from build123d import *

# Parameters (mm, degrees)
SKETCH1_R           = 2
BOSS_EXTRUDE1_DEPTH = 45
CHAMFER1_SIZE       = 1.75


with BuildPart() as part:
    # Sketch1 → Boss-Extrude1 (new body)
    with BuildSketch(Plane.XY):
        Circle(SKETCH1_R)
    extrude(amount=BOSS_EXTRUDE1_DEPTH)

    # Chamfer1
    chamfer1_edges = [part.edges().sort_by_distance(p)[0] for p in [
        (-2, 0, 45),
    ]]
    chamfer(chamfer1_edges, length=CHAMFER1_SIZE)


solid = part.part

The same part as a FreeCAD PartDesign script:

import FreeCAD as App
import Part
import Sketcher
from FreeCAD import Vector
Q = App.Units.Quantity


def edges_at(feature, points):
    """Names of the edges that pass closest to the given points."""
    edges = feature.Shape.Edges
    near = lambda p: min(range(len(edges)), key=lambda i: edges[i].distToShape(Part.Vertex(*p))[0])
    return sorted({f"Edge{near(p) + 1}" for p in points})

doc = App.newDocument("Part")
params = doc.addObject("Spreadsheet::Sheet", "Params")
for row, (alias, value) in enumerate([
    ("sketch1_diameter", "4 mm"),
    ("pad1_length", "45 mm"),
    ("chamfer_size", "1.75 mm"),
], start=1):
    params.set(f"A{row}", alias)
    params.set(f"B{row}", "=" + value)
    params.setAlias(f"B{row}", alias)

body = doc.addObject("PartDesign::Body", "Body")

# Sketch on XY plane
sketch1 = doc.addObject("Sketcher::SketchObject", "Sketch")
body.addObject(sketch1)
sketch1.AttachmentSupport = (doc.XY_Plane, [""])
sketch1.MapMode = "FlatFace"
sketch1.addGeometry(Part.Circle(Vector(0, 0, 0), Vector(0, 0, 1), 2), False)
sketch1.addConstraint([
    Sketcher.Constraint("Coincident", 0, 3, -1, 1),
    Sketcher.Constraint("Diameter", 0, Q("4 mm")),
])
sketch1.setExpression("Constraints[1]", "Params.sketch1_diameter")
pad1 = doc.addObject("PartDesign::Pad", "Pad")
body.addObject(pad1)
pad1.Profile = sketch1
pad1.setExpression("Length", "Params.pad1_length")
doc.recompute()

chamfer = doc.addObject("PartDesign::Chamfer", "Chamfer")
body.addObject(chamfer)
chamfer.Base = (pad1, edges_at(pad1, [(-2, 0, 45)]))
chamfer.setExpression("Size", "Params.chamfer_size")

doc.recompute()
